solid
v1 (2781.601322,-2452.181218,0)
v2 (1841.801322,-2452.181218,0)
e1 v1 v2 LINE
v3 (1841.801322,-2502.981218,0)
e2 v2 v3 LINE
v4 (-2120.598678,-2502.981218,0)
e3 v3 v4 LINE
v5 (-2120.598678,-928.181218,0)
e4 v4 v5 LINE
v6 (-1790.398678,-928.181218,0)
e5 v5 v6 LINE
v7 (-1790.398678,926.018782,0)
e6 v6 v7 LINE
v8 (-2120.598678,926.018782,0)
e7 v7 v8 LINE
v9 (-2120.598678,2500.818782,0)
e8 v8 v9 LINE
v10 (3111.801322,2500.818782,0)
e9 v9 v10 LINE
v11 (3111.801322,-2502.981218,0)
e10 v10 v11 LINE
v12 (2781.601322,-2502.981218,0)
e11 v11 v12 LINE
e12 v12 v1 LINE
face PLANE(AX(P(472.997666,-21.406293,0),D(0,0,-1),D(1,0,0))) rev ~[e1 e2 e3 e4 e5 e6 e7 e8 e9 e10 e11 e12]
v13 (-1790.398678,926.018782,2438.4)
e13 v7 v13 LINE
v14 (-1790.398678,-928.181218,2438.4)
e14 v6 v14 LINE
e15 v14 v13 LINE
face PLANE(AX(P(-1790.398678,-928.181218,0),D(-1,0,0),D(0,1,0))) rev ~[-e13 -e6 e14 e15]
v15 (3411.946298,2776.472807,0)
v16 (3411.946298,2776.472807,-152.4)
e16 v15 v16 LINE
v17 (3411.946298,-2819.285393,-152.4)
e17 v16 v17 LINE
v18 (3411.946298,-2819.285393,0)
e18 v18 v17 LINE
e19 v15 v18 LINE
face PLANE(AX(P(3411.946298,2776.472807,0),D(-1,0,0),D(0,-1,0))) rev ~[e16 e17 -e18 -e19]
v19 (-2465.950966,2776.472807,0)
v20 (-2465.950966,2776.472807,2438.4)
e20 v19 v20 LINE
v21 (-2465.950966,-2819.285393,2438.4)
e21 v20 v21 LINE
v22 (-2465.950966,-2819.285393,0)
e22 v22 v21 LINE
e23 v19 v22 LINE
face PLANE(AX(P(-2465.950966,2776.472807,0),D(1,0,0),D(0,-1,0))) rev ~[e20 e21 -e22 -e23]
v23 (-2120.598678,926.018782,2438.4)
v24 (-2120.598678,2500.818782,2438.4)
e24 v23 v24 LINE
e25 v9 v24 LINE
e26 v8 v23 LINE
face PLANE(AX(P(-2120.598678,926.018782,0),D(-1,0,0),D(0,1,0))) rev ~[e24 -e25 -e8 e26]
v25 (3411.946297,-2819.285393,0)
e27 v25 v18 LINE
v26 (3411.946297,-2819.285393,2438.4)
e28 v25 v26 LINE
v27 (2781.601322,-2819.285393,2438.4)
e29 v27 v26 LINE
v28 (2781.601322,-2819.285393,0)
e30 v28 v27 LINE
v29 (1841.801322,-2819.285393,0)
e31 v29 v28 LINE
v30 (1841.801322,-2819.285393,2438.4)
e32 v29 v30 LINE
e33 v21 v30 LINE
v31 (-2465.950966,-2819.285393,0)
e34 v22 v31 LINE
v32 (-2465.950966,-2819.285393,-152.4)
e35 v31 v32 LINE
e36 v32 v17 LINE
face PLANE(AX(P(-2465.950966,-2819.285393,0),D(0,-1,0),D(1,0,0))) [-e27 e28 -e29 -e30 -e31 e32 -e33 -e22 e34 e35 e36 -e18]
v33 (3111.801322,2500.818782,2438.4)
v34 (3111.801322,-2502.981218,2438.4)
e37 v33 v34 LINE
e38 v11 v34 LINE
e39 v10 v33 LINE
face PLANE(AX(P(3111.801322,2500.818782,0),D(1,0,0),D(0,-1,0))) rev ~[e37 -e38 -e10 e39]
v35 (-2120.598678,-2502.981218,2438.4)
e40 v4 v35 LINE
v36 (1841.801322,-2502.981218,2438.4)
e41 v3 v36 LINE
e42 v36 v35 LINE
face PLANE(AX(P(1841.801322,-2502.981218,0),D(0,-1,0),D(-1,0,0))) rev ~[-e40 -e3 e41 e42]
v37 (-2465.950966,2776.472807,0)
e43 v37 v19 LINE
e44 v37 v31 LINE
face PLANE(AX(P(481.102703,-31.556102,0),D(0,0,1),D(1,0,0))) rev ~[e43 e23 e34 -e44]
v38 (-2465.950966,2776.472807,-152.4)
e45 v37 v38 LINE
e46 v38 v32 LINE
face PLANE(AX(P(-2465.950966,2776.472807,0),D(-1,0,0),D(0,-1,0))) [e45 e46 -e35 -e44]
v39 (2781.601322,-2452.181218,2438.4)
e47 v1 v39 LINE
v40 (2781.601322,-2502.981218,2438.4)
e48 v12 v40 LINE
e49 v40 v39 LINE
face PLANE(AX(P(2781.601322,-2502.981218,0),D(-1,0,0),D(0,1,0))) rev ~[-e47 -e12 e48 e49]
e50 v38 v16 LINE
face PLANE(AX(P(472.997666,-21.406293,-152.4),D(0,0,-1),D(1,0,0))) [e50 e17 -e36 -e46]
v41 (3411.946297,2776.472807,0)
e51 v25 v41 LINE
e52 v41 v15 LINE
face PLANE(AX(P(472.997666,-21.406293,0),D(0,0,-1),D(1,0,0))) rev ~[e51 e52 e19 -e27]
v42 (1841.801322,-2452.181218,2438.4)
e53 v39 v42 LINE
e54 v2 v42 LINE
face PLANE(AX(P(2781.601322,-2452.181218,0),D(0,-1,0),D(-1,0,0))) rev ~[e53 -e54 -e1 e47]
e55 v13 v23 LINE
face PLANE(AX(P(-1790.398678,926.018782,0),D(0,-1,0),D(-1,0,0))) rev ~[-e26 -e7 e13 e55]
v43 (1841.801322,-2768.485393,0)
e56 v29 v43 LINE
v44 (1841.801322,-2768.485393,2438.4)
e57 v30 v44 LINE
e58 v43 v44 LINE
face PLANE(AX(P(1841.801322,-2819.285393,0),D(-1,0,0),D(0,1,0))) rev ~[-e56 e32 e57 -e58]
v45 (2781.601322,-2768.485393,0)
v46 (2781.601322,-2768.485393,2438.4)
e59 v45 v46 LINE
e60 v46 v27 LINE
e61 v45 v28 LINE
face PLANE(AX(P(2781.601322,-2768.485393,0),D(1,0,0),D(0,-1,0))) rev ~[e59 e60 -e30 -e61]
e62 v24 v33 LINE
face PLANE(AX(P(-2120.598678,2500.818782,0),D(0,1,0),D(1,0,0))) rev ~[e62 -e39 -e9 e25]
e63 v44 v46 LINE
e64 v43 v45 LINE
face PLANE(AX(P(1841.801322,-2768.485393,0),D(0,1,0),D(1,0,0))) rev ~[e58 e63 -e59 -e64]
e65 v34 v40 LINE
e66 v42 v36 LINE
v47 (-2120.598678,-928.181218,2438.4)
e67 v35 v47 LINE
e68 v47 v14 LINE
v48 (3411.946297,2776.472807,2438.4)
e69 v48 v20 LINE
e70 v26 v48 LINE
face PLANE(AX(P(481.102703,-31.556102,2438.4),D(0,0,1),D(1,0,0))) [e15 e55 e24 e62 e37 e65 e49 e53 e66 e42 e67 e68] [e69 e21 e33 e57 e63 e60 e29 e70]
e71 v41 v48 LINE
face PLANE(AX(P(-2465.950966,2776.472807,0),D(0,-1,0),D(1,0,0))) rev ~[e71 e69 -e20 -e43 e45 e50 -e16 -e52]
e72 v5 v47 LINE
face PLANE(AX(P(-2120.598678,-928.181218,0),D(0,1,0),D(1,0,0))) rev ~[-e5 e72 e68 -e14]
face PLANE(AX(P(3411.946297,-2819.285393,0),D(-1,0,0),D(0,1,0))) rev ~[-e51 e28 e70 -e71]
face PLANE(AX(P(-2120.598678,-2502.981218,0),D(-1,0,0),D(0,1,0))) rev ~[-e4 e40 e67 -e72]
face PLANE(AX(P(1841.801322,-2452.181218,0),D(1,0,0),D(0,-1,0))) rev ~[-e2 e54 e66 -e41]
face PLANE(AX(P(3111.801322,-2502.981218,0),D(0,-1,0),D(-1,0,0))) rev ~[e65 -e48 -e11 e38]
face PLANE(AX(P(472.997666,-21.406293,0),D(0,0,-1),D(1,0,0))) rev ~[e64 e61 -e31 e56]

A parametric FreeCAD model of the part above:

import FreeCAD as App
import Part
import Sketcher
Q = App.Units.Quantity

doc = App.newDocument("Part")
body = doc.addObject("PartDesign::Body", "Body")

# Sketch on XY plane
sketch1 = body.newObject("Sketcher::SketchObject", "Sketch")
sketch1.AttachmentSupport = (doc.getObject("XY_Plane"), [""])
sketch1.MapMode = "FlatFace"
sketch1.addGeometry([
    Part.LineSegment(App.Vector(3412, 2776, 0), App.Vector(-2466, 2776, 0)),  # 0
    Part.LineSegment(App.Vector(-2466, 2776, 0), App.Vector(-2466, -2819, 0)),  # 1
    Part.LineSegment(App.Vector(-2466, -2819, 0), App.Vector(1842, -2819, 0)),  # 2
    Part.LineSegment(App.Vector(1842, -2819, 0), App.Vector(1842, -2768, 0)),  # 3
    Part.LineSegment(App.Vector(1842, -2768, 0), App.Vector(2782, -2768, 0)),  # 4
    Part.LineSegment(App.Vector(2782, -2768, 0), App.Vector(2782, -2819, 0)),  # 5
    Part.LineSegment(App.Vector(2782, -2819, 0), App.Vector(3412, -2819, 0)),  # 6
    Part.LineSegment(App.Vector(3412, -2819, 0), App.Vector(3412, 2776, 0)),  # 7
    Part.LineSegment(App.Vector(-1790, 926, 0), App.Vector(-2121, 926, 0)),  # 8
    Part.LineSegment(App.Vector(-2121, 926, 0), App.Vector(-2121, 2501, 0)),  # 9
    Part.LineSegment(App.Vector(-2121, 2501, 0), App.Vector(3112, 2501, 0)),  # 10
    Part.LineSegment(App.Vector(3112, 2501, 0), App.Vector(3112, -2503, 0)),  # 11
    Part.LineSegment(App.Vector(3112, -2503, 0), App.Vector(2782, -2503, 0)),  # 12
    Part.LineSegment(App.Vector(2782, -2503, 0), App.Vector(2782, -2452, 0)),  # 13
    Part.LineSegment(App.Vector(2782, -2452, 0), App.Vector(1842, -2452, 0)),  # 14
    Part.LineSegment(App.Vector(1842, -2452, 0), App.Vector(1842, -2503, 0)),  # 15
    Part.LineSegment(App.Vector(1842, -2503, 0), App.Vector(-2121, -2503, 0)),  # 16
    Part.LineSegment(App.Vector(-2121, -2503, 0), App.Vector(-2121, -928, 0)),  # 17
    Part.LineSegment(App.Vector(-2121, -928, 0), App.Vector(-1790, -928, 0)),  # 18
    Part.LineSegment(App.Vector(-1790, -928, 0), App.Vector(-1790, 926, 0)),  # 19
], False)
sketch1.addConstraint([
    Sketcher.Constraint("Coincident", 0, 2, 1, 1),
    Sketcher.Constraint("Coincident", 1, 2, 2, 1),
    Sketcher.Constraint("Coincident", 2, 2, 3, 1),
    Sketcher.Constraint("Coincident", 3, 2, 4, 1),
    Sketcher.Constraint("Coincident", 4, 2, 5, 1),
    Sketcher.Constraint("Coincident", 5, 2, 6, 1),
    Sketcher.Constraint("Coincident", 6, 2, 7, 1),
    Sketcher.Constraint("Coincident", 7, 2, 0, 1),
    Sketcher.Constraint("Coincident", 8, 2, 9, 1),
    Sketcher.Constraint("Coincident", 9, 2, 10, 1),
    Sketcher.Constraint("Coincident", 10, 2, 11, 1),
    Sketcher.Constraint("Coincident", 11, 2, 12, 1),
    Sketcher.Constraint("Coincident", 12, 2, 13, 1),
    Sketcher.Constraint("Coincident", 13, 2, 14, 1),
    Sketcher.Constraint("Coincident", 14, 2, 15, 1),
    Sketcher.Constraint("Coincident", 15, 2, 16, 1),
    Sketcher.Constraint("Coincident", 16, 2, 17, 1),
    Sketcher.Constraint("Coincident", 17, 2, 18, 1),
    Sketcher.Constraint("Coincident", 18, 2, 19, 1),
    Sketcher.Constraint("Coincident", 19, 2, 8, 1),
    Sketcher.Constraint("Horizontal", 0),
    Sketcher.Constraint("Vertical", 1),
    Sketcher.Constraint("Horizontal", 2),
    Sketcher.Constraint("Vertical", 3),
    Sketcher.Constraint("Horizontal", 4),
    Sketcher.Constraint("Vertical", 5),
    Sketcher.Constraint("Horizontal", 6),
    Sketcher.Constraint("Vertical", 7),
    Sketcher.Constraint("Horizontal", 8),
    Sketcher.Constraint("Vertical", 9),
    Sketcher.Constraint("Horizontal", 10),
    Sketcher.Constraint("Vertical", 11),
    Sketcher.Constraint("Horizontal", 12),
    Sketcher.Constraint("Vertical", 13),
    Sketcher.Constraint("Horizontal", 14),
    Sketcher.Constraint("Vertical", 15),
    Sketcher.Constraint("Horizontal", 16),
    Sketcher.Constraint("Vertical", 17),
    Sketcher.Constraint("Horizontal", 18),
    Sketcher.Constraint("Vertical", 19),
    Sketcher.Constraint("Horizontal", 2, 2, 5, 2),
    Sketcher.Constraint("Horizontal", 12, 2, 15, 2),
    Sketcher.Constraint("Vertical", 5, 2, 12, 2),
    Sketcher.Constraint("Vertical", 3, 2, 14, 2),
    Sketcher.Constraint("Vertical", 9, 2, 16, 2),
    Sketcher.Constraint("Equal", 8, 12),
    Sketcher.Constraint("Equal", 5, 13),
    Sketcher.Constraint("Equal", 9, 17),
    Sketcher.Constraint("DistanceX", 4, 1, 4, 2, Q("37 in")),
    Sketcher.Constraint("DistanceX", 8, 2, 8, 1, Q("13 in")),
    Sketcher.Constraint("DistanceX", 10, 1, 10, 2, Q("206 in")),
    Sketcher.Constraint("DistanceY", 3, 1, 3, 2, Q("2 in")),
    Sketcher.Constraint("DistanceY", 9, 1, 9, 2, Q("62 in")),
    Sketcher.Constraint("DistanceY", 11, 2, 11, 1, Q("197 in")),
    Sketcher.Constraint("DistanceY", 1, 2, 1, 1, 5595.7582),
    Sketcher.Constraint("DistanceX", 0, 2, 0, 1, 5877.897263),
    Sketcher.Constraint("DistanceX", 2, 1, 2, 2, 4307.752288),
    Sketcher.Constraint("DistanceX", -1, 1, 2, 2, 1841.801322),
    Sketcher.Constraint("DistanceY", -1, 1, 8, 2, 926.018782),
    Sketcher.Constraint("DistanceY", -1, 1, 0, 2, 2776.472807),
])
pad1 = body.newObject("PartDesign::Pad", "Pad")
pad1.Profile = sketch1
pad1.Length = Q("96 in")

# Sketch on XY plane
sketch2 = body.newObject("Sketcher::SketchObject", "Sketch001")
sketch2.AttachmentSupport = (doc.getObject("XY_Plane"), [""])
sketch2.MapMode = "FlatFace"
sketch2.addGeometry([
    Part.LineSegment(App.Vector(-2466, -2819, 0), App.Vector(-2466, 2776, 0)),
    Part.LineSegment(App.Vector(-2466, 2776, 0), App.Vector(3412, 2776, 0)),
    Part.LineSegment(App.Vector(3412, 2776, 0), App.Vector(3412, -2819, 0)),
    Part.LineSegment(App.Vector(3412, -2819, 0), App.Vector(-2466, -2819, 0)),
], False)
sketch2.addConstraint([
    Sketcher.Constraint("Coincident", 0, 2, 1, 1),
    Sketcher.Constraint("Coincident", 1, 2, 2, 1),
    Sketcher.Constraint("Coincident", 2, 2, 3, 1),
    Sketcher.Constraint("Coincident", 3, 2, 0, 1),
    Sketcher.Constraint("Vertical", 0),
    Sketcher.Constraint("Horizontal", 1),
    Sketcher.Constraint("Vertical", 2),
    Sketcher.Constraint("Horizontal", 3),
    Sketcher.Constraint("DistanceY", 0, 1, 0, 2, 5595.7582),
    Sketcher.Constraint("DistanceX", 1, 1, 1, 2, 5877.897263),
    Sketcher.Constraint("DistanceX", 0, 2, -1, 1, 2465.950966),
    Sketcher.Constraint("DistanceY", -1, 1, 0, 2, 2776.472807),
])
pad2 = body.newObject("PartDesign::Pad", "Pad001")
pad2.Profile = sketch2
pad2.Length = Q("6 in")
pad2.Reversed = True

doc.recompute()
